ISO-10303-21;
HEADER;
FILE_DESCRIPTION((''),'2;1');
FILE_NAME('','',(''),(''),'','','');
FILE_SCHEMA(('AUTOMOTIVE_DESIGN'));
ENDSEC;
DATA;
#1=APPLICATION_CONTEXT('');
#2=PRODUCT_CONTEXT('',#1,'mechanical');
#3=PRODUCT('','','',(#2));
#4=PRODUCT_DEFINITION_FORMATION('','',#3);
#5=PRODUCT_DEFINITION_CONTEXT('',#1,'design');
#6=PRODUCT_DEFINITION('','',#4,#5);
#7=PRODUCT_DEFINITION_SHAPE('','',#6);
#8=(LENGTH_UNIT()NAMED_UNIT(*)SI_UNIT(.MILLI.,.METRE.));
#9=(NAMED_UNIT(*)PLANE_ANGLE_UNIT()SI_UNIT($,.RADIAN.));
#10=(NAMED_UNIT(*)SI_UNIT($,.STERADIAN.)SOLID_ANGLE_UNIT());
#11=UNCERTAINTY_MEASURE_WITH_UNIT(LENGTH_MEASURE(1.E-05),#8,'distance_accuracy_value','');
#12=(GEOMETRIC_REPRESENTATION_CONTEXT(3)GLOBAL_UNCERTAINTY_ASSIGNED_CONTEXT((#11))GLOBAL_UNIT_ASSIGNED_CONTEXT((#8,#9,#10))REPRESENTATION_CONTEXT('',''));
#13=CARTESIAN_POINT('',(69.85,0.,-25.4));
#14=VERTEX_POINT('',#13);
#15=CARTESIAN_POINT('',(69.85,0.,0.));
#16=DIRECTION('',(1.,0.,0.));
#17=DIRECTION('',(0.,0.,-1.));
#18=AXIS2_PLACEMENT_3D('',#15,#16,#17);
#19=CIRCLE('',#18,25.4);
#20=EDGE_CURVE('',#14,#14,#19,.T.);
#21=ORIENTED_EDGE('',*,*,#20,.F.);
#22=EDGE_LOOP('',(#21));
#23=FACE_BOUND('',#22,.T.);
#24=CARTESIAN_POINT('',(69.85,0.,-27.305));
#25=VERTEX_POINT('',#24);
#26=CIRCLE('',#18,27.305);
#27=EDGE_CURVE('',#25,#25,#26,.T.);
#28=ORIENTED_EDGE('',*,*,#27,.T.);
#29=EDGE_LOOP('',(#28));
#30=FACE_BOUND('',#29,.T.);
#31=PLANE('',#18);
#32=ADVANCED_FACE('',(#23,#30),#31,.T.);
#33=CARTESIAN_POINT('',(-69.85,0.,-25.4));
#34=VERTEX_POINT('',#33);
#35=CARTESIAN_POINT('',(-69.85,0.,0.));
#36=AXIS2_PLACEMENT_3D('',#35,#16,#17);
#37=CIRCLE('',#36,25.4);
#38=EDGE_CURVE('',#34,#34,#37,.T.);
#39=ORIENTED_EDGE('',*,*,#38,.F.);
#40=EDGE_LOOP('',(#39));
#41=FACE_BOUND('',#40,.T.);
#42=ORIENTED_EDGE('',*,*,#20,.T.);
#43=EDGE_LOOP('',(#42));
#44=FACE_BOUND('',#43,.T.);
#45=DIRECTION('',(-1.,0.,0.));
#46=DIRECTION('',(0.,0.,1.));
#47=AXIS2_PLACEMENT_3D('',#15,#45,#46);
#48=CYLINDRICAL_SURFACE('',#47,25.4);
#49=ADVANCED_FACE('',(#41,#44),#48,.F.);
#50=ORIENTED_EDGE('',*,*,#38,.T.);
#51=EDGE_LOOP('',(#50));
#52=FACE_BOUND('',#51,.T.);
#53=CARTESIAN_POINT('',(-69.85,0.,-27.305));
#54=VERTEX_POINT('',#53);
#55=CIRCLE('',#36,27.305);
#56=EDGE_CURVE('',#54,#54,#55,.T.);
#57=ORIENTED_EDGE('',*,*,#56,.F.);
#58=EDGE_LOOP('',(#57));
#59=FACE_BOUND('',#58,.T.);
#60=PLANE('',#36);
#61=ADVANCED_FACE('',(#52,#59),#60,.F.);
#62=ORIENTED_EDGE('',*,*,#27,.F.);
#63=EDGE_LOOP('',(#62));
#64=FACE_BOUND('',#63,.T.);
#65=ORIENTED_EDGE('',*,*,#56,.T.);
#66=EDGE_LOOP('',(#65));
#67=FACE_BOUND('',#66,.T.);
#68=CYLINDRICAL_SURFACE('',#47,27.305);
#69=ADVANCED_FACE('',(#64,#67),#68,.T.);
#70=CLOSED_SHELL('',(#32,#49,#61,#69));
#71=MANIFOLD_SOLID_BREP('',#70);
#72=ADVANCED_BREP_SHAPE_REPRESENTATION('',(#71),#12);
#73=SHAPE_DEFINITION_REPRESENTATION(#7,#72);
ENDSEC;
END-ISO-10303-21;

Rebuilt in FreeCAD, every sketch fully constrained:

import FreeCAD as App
import Part
import Sketcher
from FreeCAD import Vector
Q = App.Units.Quantity

doc = App.newDocument("Part")
body = doc.addObject("PartDesign::Body", "Body")

# Sketch on YZ plane
sketch1 = body.newObject("Sketcher::SketchObject", "Sketch")
sketch1.AttachmentSupport = (doc.getObject("YZ_Plane"), [""])
sketch1.MapMode = "FlatFace"
sketch1.addGeometry(Part.Circle(Vector(0, 0, 0), Vector(0, 0, 1), 27), False)
sketch1.addGeometry(Part.Circle(Vector(0, 0, 0), Vector(0, 0, 1), 25), False)
sketch1.addConstraint(Sketcher.Constraint("Coincident", 0, 3, -1, 1))
sketch1.addConstraint(Sketcher.Constraint("Coincident", 1, 3, -1, 1))
sketch1.addConstraint(Sketcher.Constraint("Diameter", 1, Q("2 in")))
sketch1.addConstraint(Sketcher.Constraint("Diameter", 0, Q("2.15 in")))
pad1 = body.newObject("PartDesign::Pad", "Pad")
pad1.Profile = sketch1
pad1.Length = Q("5.5 in")
pad1.Midplane = True

doc.recompute()
